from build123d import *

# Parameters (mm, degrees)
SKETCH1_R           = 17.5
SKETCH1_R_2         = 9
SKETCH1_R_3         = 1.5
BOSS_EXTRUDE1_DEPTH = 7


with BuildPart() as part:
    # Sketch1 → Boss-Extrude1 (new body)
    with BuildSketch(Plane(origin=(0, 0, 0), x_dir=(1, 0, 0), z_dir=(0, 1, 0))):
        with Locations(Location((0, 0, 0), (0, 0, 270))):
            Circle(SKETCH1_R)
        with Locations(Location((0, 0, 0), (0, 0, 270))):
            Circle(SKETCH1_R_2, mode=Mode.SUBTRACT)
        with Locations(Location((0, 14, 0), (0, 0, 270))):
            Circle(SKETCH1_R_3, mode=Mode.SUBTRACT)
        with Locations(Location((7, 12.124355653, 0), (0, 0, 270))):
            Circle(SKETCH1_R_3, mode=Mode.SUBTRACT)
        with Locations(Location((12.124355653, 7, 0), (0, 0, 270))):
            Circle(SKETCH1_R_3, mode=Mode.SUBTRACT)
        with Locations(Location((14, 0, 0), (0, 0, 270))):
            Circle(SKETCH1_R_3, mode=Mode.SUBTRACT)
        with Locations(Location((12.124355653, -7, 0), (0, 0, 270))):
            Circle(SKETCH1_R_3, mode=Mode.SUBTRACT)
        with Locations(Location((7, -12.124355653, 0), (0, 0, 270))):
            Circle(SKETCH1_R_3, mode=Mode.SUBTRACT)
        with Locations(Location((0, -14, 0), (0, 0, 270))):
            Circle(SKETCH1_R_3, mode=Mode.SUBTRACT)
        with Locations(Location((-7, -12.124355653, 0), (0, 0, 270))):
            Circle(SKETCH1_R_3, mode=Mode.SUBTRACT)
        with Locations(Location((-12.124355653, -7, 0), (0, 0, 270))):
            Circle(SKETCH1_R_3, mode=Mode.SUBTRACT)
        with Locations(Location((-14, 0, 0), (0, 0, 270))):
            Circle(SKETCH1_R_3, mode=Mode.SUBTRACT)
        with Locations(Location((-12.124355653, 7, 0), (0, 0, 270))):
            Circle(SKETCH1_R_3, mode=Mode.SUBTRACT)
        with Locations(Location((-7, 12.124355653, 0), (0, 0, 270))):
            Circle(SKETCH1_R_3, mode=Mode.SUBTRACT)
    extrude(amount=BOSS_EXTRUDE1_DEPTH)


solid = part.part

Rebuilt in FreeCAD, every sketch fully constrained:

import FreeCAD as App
import Part
import Sketcher
from FreeCAD import Vector
Q = App.Units.Quantity

doc = App.newDocument("Part")
params = doc.addObject("Spreadsheet::Sheet", "Params")
for row, (alias, value) in enumerate([
    ("sketch1_diameter", "35 mm"),
    ("sketch1_diameter2", "3 mm"),
    ("sketch1_diameter3", "18 mm"),
    ("pad1_length", "7 mm"),
], start=1):
    params.set(f"A{row}", alias)
    params.set(f"B{row}", "=" + value)
    params.setAlias(f"B{row}", alias)

body = doc.addObject("PartDesign::Body", "Body")

sketch1 = doc.addObject("Sketcher::SketchObject", "Sketch")
body.addObject(sketch1)
sketch1.AttachmentSupport = (doc.XZ_Plane, [""])
sketch1.MapMode = "FlatFace"
sketch1.addGeometry([
    Part.Circle(Vector(0, 0, 0), Vector(0, 0, 1), 17.5),
    Part.Circle(Vector(-12.124356, -7, 0), Vector(0, 0, 1), 1.5),
    Part.Circle(Vector(-7, -12.124356, 0), Vector(0, 0, 1), 1.5),
    Part.Circle(Vector(0, -14, 0), Vector(0, 0, 1), 1.5),
    Part.Circle(Vector(-14, 0, 0), Vector(0, 0, 1), 1.5),
    Part.Circle(Vector(-12.124356, 7, 0), Vector(0, 0, 1), 1.5),
    Part.Circle(Vector(-7, 12.124356, 0), Vector(0, 0, 1), 1.5),
    Part.Circle(Vector(7, -12.124356, 0), Vector(0, 0, 1), 1.5),
    Part.Circle(Vector(12.124356, -7, 0), Vector(0, 0, 1), 1.5),
    Part.Circle(Vector(14, 0, 0), Vector(0, 0, 1), 1.5),
    Part.Circle(Vector(0, 0, 0), Vector(0, 0, 1), 9),
    Part.Circle(Vector(0, 14, 0), Vector(0, 0, 1), 1.5),
    Part.Circle(Vector(7, 12.124356, 0), Vector(0, 0, 1), 1.5),
    Part.Circle(Vector(12.124356, 7, 0), Vector(0, 0, 1), 1.5),
], False)
sketch1.addConstraint([
    Sketcher.Constraint("Coincident", 0, 3, -1, 1),
    Sketcher.Constraint("Coincident", 10, 3, -1, 1),
    Sketcher.Constraint("Equal", 1, 2),
    Sketcher.Constraint("Equal", 2, 3),
    Sketcher.Constraint("Equal", 3, 4),
    Sketcher.Constraint("Equal", 4, 5),
    Sketcher.Constraint("Equal", 5, 6),
    Sketcher.Constraint("Equal", 6, 7),
    Sketcher.Constraint("Equal", 7, 8),
    Sketcher.Constraint("Equal", 8, 9),
    Sketcher.Constraint("Equal", 9, 11),
    Sketcher.Constraint("Equal", 11, 12),
    Sketcher.Constraint("Equal", 12, 13),
    Sketcher.Constraint("Symmetric", 6, 3, 7, 3, -1, 1),
    Sketcher.Constraint("Symmetric", 5, 3, 8, 3, -1, 1),
    Sketcher.Constraint("Symmetric", 4, 3, 9, 3, -1, 1),
    Sketcher.Constraint("Symmetric", 3, 3, 11, 3, -1, 1),
    Sketcher.Constraint("Symmetric", 2, 3, 12, 3, -1, 1),
    Sketcher.Constraint("Symmetric", 1, 3, 13, 3, -1, 1),
    Sketcher.Constraint("Symmetric", 2, 3, 7, 3, -2),
    Sketcher.Constraint("Symmetric", 1, 3, 8, 3, -2),
    Sketcher.Constraint("PointOnObject", 3, 3, -2),
    Sketcher.Constraint("PointOnObject", 4, 3, -1),
    Sketcher.Constraint("Diameter", 0, Q("35 mm")),
    Sketcher.Constraint("Diameter", 1, Q("3 mm")),
    Sketcher.Constraint("Diameter", 10, Q("18 mm")),
    Sketcher.Constraint("DistanceY", 1, 3, -1, 1, Q("7 mm")),
    Sketcher.Constraint("DistanceX", 2, 3, -1, 1, Q("7 mm")),
    Sketcher.Constraint("DistanceY", 3, 3, -1, 1, Q("14 mm")),
    Sketcher.Constraint("DistanceX", 4, 3, -1, 1, Q("14 mm")),
    Sketcher.Constraint("DistanceY", 2, 3, 6, 3, Q("24.248711 mm")),
    Sketcher.Constraint("DistanceX", 1, 3, 8, 3, Q("24.248711 mm")),
])
sketch1.setExpression("Constraints[23]", "Params.sketch1_diameter")
sketch1.setExpression("Constraints[24]", "Params.sketch1_diameter2")
sketch1.setExpression("Constraints[25]", "Params.sketch1_diameter3")
pad1 = doc.addObject("PartDesign::Pad", "Pad")
body.addObject(pad1)
pad1.Profile = sketch1
pad1.setExpression("Length", "Params.pad1_length")
pad1.Reversed = True

doc.recompute()
